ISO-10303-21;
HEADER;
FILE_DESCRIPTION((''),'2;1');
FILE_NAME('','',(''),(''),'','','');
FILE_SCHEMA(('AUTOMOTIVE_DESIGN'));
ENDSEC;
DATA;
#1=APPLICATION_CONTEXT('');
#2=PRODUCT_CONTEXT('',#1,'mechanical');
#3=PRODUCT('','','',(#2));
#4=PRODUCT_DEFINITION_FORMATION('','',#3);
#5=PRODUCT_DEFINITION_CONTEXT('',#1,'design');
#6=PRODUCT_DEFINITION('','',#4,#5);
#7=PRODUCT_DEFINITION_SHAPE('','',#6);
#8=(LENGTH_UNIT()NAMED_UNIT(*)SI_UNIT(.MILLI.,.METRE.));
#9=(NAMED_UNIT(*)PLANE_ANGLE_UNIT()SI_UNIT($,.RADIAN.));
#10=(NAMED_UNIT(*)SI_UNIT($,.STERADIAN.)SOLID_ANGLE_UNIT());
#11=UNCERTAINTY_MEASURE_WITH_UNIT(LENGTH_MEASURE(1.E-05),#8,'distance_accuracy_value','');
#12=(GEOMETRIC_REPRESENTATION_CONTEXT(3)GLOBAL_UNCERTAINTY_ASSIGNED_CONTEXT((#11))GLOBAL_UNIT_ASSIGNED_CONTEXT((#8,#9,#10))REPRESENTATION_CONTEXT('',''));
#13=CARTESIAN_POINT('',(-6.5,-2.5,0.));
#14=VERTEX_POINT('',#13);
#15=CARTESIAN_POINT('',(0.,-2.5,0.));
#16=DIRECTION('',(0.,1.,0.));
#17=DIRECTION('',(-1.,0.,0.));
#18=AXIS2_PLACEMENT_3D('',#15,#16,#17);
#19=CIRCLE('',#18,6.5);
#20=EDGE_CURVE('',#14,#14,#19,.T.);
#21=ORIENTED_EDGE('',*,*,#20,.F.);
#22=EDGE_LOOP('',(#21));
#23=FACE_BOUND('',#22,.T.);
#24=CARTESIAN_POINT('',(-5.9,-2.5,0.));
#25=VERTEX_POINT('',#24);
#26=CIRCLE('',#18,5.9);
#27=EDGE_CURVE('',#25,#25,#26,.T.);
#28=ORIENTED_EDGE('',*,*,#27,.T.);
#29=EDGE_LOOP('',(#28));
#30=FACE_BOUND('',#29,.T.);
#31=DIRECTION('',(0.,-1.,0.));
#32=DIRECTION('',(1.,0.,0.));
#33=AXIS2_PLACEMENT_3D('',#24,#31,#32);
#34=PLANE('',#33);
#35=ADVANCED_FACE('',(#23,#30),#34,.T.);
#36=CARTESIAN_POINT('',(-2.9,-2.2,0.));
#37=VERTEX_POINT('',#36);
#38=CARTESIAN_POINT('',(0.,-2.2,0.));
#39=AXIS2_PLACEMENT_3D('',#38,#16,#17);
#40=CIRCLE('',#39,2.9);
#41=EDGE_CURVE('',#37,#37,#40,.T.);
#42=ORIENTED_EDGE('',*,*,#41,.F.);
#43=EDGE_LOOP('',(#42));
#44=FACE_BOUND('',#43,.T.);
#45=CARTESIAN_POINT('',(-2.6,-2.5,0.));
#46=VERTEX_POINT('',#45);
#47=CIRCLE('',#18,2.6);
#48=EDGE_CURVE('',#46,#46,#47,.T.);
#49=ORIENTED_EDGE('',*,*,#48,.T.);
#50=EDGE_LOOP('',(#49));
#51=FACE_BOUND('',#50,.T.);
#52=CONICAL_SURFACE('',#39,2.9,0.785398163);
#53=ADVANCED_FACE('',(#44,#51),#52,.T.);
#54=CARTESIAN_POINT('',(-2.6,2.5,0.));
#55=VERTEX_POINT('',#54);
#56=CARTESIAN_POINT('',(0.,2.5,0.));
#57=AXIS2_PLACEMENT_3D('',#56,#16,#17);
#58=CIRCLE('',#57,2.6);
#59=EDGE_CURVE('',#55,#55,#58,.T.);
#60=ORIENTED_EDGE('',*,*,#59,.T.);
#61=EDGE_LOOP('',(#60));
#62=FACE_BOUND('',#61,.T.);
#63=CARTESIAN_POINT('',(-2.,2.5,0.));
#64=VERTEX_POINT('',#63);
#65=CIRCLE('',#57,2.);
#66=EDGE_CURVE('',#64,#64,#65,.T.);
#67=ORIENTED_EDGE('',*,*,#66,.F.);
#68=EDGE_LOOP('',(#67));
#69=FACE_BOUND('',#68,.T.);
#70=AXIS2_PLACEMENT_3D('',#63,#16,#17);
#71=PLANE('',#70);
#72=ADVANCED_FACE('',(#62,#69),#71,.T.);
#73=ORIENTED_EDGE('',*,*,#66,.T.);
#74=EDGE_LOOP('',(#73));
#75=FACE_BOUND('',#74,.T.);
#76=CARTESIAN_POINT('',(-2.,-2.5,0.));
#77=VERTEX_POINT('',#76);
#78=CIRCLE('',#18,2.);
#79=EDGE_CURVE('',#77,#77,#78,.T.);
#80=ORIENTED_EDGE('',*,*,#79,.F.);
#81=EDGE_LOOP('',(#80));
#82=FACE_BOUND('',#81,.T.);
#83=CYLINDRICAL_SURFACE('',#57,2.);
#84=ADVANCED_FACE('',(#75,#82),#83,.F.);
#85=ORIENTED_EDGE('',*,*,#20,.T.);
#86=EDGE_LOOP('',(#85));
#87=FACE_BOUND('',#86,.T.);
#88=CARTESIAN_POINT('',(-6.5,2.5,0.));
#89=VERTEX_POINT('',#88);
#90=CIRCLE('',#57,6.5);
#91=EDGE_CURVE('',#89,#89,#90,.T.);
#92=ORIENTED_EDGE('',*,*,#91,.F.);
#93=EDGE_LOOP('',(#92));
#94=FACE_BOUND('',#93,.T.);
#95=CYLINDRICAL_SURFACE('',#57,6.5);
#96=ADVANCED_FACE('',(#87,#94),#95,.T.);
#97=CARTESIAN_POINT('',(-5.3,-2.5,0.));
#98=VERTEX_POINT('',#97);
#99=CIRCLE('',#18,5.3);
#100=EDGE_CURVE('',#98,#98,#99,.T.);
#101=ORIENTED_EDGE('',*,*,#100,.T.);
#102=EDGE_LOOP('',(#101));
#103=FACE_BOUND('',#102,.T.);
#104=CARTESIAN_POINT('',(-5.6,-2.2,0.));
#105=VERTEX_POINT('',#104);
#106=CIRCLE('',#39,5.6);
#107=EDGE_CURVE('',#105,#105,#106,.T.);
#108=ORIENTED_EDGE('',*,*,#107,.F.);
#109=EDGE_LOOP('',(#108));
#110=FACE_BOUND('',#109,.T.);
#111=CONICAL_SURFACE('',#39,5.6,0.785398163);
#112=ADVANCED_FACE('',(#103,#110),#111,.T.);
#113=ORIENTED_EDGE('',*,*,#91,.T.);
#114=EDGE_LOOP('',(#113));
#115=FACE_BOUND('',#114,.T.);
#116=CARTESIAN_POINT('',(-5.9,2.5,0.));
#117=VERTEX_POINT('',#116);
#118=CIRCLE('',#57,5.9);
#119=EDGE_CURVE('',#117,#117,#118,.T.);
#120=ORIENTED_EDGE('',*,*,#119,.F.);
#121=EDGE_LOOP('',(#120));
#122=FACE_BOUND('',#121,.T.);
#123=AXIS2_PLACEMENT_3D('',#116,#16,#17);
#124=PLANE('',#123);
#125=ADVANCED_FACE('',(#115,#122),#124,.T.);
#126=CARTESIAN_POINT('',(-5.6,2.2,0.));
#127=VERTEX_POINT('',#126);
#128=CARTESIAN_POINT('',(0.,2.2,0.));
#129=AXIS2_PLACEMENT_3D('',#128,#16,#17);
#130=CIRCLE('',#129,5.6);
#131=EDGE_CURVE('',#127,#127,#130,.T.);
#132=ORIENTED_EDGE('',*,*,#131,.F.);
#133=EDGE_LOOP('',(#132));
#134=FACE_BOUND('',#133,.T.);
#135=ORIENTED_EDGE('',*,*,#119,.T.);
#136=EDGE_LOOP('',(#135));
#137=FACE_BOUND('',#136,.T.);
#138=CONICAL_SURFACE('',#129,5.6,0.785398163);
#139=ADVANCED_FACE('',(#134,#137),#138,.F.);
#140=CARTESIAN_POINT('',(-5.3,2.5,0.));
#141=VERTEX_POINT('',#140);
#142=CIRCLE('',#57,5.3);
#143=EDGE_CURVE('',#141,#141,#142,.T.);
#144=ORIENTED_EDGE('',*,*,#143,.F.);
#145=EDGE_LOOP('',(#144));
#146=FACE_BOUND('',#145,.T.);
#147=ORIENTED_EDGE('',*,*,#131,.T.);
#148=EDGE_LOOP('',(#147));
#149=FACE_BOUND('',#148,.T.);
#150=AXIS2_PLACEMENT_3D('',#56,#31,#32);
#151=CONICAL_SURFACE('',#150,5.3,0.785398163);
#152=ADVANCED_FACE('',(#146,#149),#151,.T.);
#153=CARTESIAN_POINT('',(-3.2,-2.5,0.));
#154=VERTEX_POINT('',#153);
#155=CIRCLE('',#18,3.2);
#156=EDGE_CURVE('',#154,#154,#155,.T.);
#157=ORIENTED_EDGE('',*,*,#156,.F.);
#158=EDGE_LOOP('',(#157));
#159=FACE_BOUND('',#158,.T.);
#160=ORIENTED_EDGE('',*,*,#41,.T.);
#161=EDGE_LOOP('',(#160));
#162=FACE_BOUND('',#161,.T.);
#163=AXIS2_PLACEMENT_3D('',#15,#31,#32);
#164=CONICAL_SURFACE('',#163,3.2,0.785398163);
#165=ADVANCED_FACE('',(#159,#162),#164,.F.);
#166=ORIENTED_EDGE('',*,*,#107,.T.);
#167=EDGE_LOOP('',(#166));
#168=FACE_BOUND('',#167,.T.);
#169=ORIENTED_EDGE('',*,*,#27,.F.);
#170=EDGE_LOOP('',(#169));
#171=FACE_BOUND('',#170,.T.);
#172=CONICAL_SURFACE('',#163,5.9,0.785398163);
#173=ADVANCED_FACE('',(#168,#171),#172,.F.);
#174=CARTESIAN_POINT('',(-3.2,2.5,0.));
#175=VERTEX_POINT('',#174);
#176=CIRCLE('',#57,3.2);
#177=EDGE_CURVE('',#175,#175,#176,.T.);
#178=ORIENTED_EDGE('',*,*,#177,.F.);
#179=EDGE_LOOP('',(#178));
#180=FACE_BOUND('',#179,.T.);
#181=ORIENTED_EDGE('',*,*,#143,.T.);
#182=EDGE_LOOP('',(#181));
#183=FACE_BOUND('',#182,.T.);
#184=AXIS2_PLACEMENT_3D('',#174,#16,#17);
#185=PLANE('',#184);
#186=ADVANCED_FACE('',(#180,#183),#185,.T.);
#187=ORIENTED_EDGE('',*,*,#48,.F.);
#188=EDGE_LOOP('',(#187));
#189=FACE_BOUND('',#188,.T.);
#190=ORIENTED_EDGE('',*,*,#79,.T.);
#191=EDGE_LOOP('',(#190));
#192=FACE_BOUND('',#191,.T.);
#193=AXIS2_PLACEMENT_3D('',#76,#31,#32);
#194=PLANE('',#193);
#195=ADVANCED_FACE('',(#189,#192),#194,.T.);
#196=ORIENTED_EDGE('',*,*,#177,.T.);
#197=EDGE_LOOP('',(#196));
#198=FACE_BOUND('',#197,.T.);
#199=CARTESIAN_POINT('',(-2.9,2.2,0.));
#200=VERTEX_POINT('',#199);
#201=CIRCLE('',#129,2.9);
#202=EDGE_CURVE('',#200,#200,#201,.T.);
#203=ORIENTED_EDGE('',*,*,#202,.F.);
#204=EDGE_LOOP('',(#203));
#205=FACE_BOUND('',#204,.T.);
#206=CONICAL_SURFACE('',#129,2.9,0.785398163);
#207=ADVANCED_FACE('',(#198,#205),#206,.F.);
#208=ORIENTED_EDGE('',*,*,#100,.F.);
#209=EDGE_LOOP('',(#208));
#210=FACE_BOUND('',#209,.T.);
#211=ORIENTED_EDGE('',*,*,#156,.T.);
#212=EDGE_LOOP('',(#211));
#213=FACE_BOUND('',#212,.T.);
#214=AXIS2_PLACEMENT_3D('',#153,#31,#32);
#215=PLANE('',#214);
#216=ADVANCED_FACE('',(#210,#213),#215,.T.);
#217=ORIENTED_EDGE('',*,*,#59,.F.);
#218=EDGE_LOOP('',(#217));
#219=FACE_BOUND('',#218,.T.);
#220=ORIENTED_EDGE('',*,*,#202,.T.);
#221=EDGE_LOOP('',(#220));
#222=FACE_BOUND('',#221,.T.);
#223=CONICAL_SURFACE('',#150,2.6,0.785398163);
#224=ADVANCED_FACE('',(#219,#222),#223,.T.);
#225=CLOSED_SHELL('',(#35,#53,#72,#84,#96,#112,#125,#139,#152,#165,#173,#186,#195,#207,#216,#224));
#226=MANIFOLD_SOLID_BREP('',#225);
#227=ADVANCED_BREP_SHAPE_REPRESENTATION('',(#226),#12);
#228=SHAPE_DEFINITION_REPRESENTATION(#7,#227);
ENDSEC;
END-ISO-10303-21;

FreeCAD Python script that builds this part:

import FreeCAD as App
import Part
import Sketcher

V = App.Vector

doc = App.newDocument("Part")
body = doc.addObject("PartDesign::Body", "Body")

sketch1 = body.newObject("Sketcher::SketchObject", "Sketch")
sketch1.AttachmentSupport = (doc.getObject("XY_Plane"), [""])
sketch1.MapMode = "FlatFace"
sketch1.addGeometry(Part.LineSegment(V(-2, 2.5, 0), V(-2.6, 2.5, 0)), False)
sketch1.addGeometry(Part.LineSegment(V(-2.6, 2.5, 0), V(-2.9, 2.2, 0)), False)
sketch1.addGeometry(Part.LineSegment(V(-2.9, 2.2, 0), V(-3.2, 2.5, 0)), False)
sketch1.addGeometry(Part.LineSegment(V(-3.2, 2.5, 0), V(-5.3, 2.5, 0)), False)
sketch1.addGeometry(Part.LineSegment(V(-5.3, 2.5, 0), V(-5.6, 2.2, 0)), False)
sketch1.addGeometry(Part.LineSegment(V(-5.6, 2.2, 0), V(-5.9, 2.5, 0)), False)
sketch1.addGeometry(Part.LineSegment(V(-5.9, 2.5, 0), V(-6.5, 2.5, 0)), False)
sketch1.addGeometry(Part.LineSegment(V(-6.5, 2.5, 0), V(-6.5, -2.5, 0)), False)
sketch1.addGeometry(Part.LineSegment(V(-6.5, -2.5, 0), V(-5.9, -2.5, 0)), False)
sketch1.addGeometry(Part.LineSegment(V(-5.9, -2.5, 0), V(-5.6, -2.2, 0)), False)
sketch1.addGeometry(Part.LineSegment(V(-5.6, -2.2, 0), V(-5.3, -2.5, 0)), False)
sketch1.addGeometry(Part.LineSegment(V(-5.3, -2.5, 0), V(-3.2, -2.5, 0)), False)
sketch1.addGeometry(Part.LineSegment(V(-3.2, -2.5, 0), V(-2.9, -2.2, 0)), False)
sketch1.addGeometry(Part.LineSegment(V(-2.9, -2.2, 0), V(-2.6, -2.5, 0)), False)
sketch1.addGeometry(Part.LineSegment(V(-2.6, -2.5, 0), V(-2, -2.5, 0)), False)
sketch1.addGeometry(Part.LineSegment(V(-2, -2.5, 0), V(-2, 2.5, 0)), False)
sketch1.addConstraint(Sketcher.Constraint("Coincident", 0, 2, 1, 1))
sketch1.addConstraint(Sketcher.Constraint("Coincident", 1, 2, 2, 1))
sketch1.addConstraint(Sketcher.Constraint("Coincident", 2, 2, 3, 1))
sketch1.addConstraint(Sketcher.Constraint("Coincident", 3, 2, 4, 1))
sketch1.addConstraint(Sketcher.Constraint("Coincident", 4, 2, 5, 1))
sketch1.addConstraint(Sketcher.Constraint("Coincident", 5, 2, 6, 1))
sketch1.addConstraint(Sketcher.Constraint("Coincident", 6, 2, 7, 1))
sketch1.addConstraint(Sketcher.Constraint("Coincident", 7, 2, 8, 1))
sketch1.addConstraint(Sketcher.Constraint("Coincident", 8, 2, 9, 1))
sketch1.addConstraint(Sketcher.Constraint("Coincident", 9, 2, 10, 1))
sketch1.addConstraint(Sketcher.Constraint("Coincident", 10, 2, 11, 1))
sketch1.addConstraint(Sketcher.Constraint("Coincident", 11, 2, 12, 1))
sketch1.addConstraint(Sketcher.Constraint("Coincident", 12, 2, 13, 1))
sketch1.addConstraint(Sketcher.Constraint("Coincident", 13, 2, 14, 1))
sketch1.addConstraint(Sketcher.Constraint("Coincident", 14, 2, 15, 1))
sketch1.addConstraint(Sketcher.Constraint("Coincident", 15, 2, 0, 1))
sketch1.addConstraint(Sketcher.Constraint("Horizontal", 0))
sketch1.addConstraint(Sketcher.Constraint("Horizontal", 3))
sketch1.addConstraint(Sketcher.Constraint("Horizontal", 6))
sketch1.addConstraint(Sketcher.Constraint("Vertical", 7))
sketch1.addConstraint(Sketcher.Constraint("Horizontal", 8))
sketch1.addConstraint(Sketcher.Constraint("Horizontal", 11))
sketch1.addConstraint(Sketcher.Constraint("Horizontal", 14))
sketch1.addConstraint(Sketcher.Constraint("Vertical", 15))
sketch1.addConstraint(Sketcher.Constraint("Symmetric", 5, 2, 8, 2, -1))
sketch1.addConstraint(Sketcher.Constraint("Symmetric", 4, 2, 9, 2, -1))
sketch1.addConstraint(Sketcher.Constraint("Symmetric", 3, 2, 10, 2, -1))
sketch1.addConstraint(Sketcher.Constraint("Symmetric", 1, 2, 12, 2, -1))
sketch1.addConstraint(Sketcher.Constraint("Symmetric", 0, 2, 13, 2, -1))
sketch1.addConstraint(Sketcher.Constraint("Perpendicular", 1, 2))
sketch1.addConstraint(Sketcher.Constraint("Perpendicular", 2, 4))
sketch1.addConstraint(Sketcher.Constraint("Perpendicular", 4, 5))
sketch1.addConstraint(Sketcher.Constraint("Perpendicular", 5, 9))
sketch1.addConstraint(Sketcher.Constraint("Perpendicular", 10, 12))
sketch1.addConstraint(Sketcher.Constraint("Horizontal", 0, 2, 2, 2))
sketch1.addConstraint(Sketcher.Constraint("Horizontal", 1, 2, 4, 2))
sketch1.addConstraint(Sketcher.Constraint("Horizontal", 3, 2, 5, 2))
sketch1.addConstraint(Sketcher.Constraint("Equal", 0, 6))
sketch1.addConstraint(Sketcher.Constraint("DistanceY", 7, 2, 7, 1, 5.0))
sketch1.addConstraint(Sketcher.Constraint("DistanceX", 0, 2, 0, 1, 0.6))
sketch1.addConstraint(Sketcher.Constraint("DistanceX", 3, 2, 3, 1, 2.1))
sketch1.addConstraint(Sketcher.Constraint("DistanceX", 14, 2, -1, 1, 2.0))
sketch1.addConstraint(Sketcher.Constraint("DistanceX", 4, 2, 0, 2, 3.0))
revolution = body.newObject("PartDesign::Revolution", "Revolution")
revolution.Profile = sketch1
revolution.ReferenceAxis = (sketch1, ["V_Axis"])
revolution.Angle = 360

doc.recompute()
